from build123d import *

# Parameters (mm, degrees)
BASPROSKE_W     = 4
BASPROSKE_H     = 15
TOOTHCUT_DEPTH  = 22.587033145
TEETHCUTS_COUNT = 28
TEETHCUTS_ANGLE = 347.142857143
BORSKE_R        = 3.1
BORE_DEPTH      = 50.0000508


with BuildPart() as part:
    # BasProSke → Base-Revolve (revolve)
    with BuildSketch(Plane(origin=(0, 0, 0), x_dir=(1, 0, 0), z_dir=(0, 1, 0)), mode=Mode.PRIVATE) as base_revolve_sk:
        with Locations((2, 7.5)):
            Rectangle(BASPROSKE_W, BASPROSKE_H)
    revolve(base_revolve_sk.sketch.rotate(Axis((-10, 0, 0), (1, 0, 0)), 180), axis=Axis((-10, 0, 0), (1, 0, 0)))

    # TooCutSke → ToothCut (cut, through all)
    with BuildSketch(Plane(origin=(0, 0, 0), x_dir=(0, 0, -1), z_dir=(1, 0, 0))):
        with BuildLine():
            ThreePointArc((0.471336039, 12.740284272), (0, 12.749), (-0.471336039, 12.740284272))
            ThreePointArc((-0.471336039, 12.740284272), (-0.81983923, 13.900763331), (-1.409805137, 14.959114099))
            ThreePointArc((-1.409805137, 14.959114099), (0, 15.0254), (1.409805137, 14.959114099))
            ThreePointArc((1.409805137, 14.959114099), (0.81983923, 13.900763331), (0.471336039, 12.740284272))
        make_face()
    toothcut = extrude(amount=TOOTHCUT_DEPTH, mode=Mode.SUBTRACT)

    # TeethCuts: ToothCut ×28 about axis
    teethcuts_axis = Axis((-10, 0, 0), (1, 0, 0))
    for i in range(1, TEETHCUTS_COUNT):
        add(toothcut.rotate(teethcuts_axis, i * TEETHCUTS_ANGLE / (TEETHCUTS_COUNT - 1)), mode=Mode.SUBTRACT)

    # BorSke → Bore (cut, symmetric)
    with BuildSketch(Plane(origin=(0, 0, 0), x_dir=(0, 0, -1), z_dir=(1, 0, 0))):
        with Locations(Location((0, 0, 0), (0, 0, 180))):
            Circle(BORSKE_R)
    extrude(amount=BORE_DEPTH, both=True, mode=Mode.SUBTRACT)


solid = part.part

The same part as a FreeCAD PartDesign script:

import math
import FreeCAD as App
import Part
import Sketcher
from FreeCAD import Vector
Q = App.Units.Quantity


def add_polygon(sketch, points):
    """Adds a closed chain of lines whose ends are joined by coincident constraints."""
    first, n = sketch.GeometryCount, len(points)
    for a, b in zip(points, points[1:] + points[:1]):
        sketch.addGeometry(Part.LineSegment(App.Vector(*a, 0), App.Vector(*b, 0)), False)
    for i in range(n):
        sketch.addConstraint(Sketcher.Constraint("Coincident", first + i, 2, first + (i + 1) % n, 1))

doc = App.newDocument("Part")
params = doc.addObject("Spreadsheet::Sheet", "Params")
for row, (alias, value) in enumerate([
    ("sketch1_width", "4 mm"),
    ("sketch1_height", "15 mm"),
    ("revolution_angle", "360 deg"),
    ("sketch2_radius", "5.6 mm"),
    ("sketch3_diameter", "6.2 mm"),
    ("pocket2_length", "100.000102 mm"),
], start=1):
    params.set(f"A{row}", alias)
    params.set(f"B{row}", "=" + value)
    params.setAlias(f"B{row}", alias)

body = doc.addObject("PartDesign::Body", "Body")

# Sketch on XZ plane
sketch1 = body.newObject("Sketcher::SketchObject", "Sketch")
sketch1.AttachmentSupport = (doc.getObject("XZ_Plane"), [""])
sketch1.MapMode = "FlatFace"
add_polygon(sketch1, [(0, -15), (0, 0), (4, 0), (4, -15)])  # lines 0-3
sketch1.addConstraint([
    Sketcher.Constraint("Vertical", 0),
    Sketcher.Constraint("Horizontal", 1),
    Sketcher.Constraint("Vertical", 2),
    Sketcher.Constraint("Horizontal", 3),
    Sketcher.Constraint("Coincident", 0, 2, -1, 1),
    Sketcher.Constraint("DistanceX", 1, 1, 1, 2, Q("4 mm")),
    Sketcher.Constraint("DistanceY", 0, 1, 0, 2, Q("15 mm")),
])
sketch1.setExpression("Constraints[9]", "Params.sketch1_width")
sketch1.setExpression("Constraints[10]", "Params.sketch1_height")
revolution = body.newObject("PartDesign::Revolution", "Revolution")
revolution.Profile = sketch1
revolution.ReferenceAxis = (sketch1, ["H_Axis"])
revolution.setExpression("Angle", "Params.revolution_angle")

# Sketch on YZ plane
sketch2 = body.newObject("Sketcher::SketchObject", "Sketch001")
sketch2.AttachmentSupport = (doc.getObject("YZ_Plane"), [""])
sketch2.MapMode = "FlatFace"
sketch2.addGeometry([
    Part.ArcOfCircle(Part.Circle(Vector(0, 0, 0), Vector(0, 0, 1), 12.749), math.radians(-2.118733), math.radians(2.118733)),
    Part.ArcOfCircle(Part.Circle(Vector(11.719305, -5.977478, 0), Vector(0, 0, 1), 5.6), math.radians(54.652268), math.radians(79.49521)),
    Part.ArcOfCircle(Part.Circle(Vector(0, 0, 0), Vector(0, 0, 1), 15.0254), math.radians(-5.383875), math.radians(5.383875)),
    Part.ArcOfCircle(Part.Circle(Vector(11.719305, 5.977478, 0), Vector(0, 0, 1), 5.6), math.radians(-79.49521), math.radians(-54.652268)),
], False)
sketch2.addConstraint([
    Sketcher.Constraint("Coincident", 0, 1, 1, 2),
    Sketcher.Constraint("Coincident", 1, 1, 2, 1),
    Sketcher.Constraint("Coincident", 2, 2, 3, 2),
    Sketcher.Constraint("Coincident", 3, 1, 0, 2),
    Sketcher.Constraint("Coincident", 0, 3, -1, 1),
    Sketcher.Constraint("Coincident", 2, 3, -1, 1),
    Sketcher.Constraint("Equal", 1, 3),
    Sketcher.Constraint("Symmetric", 1, 3, 3, 3, -1),
    Sketcher.Constraint("Radius", 1, Q("5.6 mm")),
    Sketcher.Constraint("Radius", 0, Q("12.749 mm")),
    Sketcher.Constraint("Radius", 2, Q("15.0254 mm")),
    Sketcher.Constraint("DistanceY", 1, 3, -1, 1, Q("5.977478 mm")),
    Sketcher.Constraint("DistanceX", 1, 3, 0, 1, Q("1.020979 mm")),
])
sketch2.setExpression("Constraints[8]", "Params.sketch2_radius")
pocket1 = body.newObject("PartDesign::Pocket", "Pocket")
pocket1.Profile = sketch2
pocket1.Type = "ThroughAll"
pocket1.Reversed = True
doc.recompute()

polarpattern = body.newObject("PartDesign::PolarPattern", "PolarPattern")
polarpattern.Originals = [pocket1]
polarpattern.Axis = (doc.getObject("X_Axis"), [""])
polarpattern.Angle = 360
polarpattern.Occurrences = 28
body.Tip = polarpattern

# Sketch on YZ plane
sketch3 = body.newObject("Sketcher::SketchObject", "Sketch002")
sketch3.AttachmentSupport = (doc.getObject("YZ_Plane"), [""])
sketch3.MapMode = "FlatFace"
sketch3.addGeometry(Part.Circle(Vector(0, 0, 0), Vector(0, 0, 1), 3.1), False)
sketch3.addConstraint([
    Sketcher.Constraint("Coincident", 0, 3, -1, 1),
    Sketcher.Constraint("Diameter", 0, Q("6.2 mm")),
])
sketch3.setExpression("Constraints[1]", "Params.sketch3_diameter")
pocket2 = body.newObject("PartDesign::Pocket", "Pocket001")
pocket2.Profile = sketch3
pocket2.setExpression("Length", "Params.pocket2_length")
pocket2.Midplane = True

doc.recompute()
